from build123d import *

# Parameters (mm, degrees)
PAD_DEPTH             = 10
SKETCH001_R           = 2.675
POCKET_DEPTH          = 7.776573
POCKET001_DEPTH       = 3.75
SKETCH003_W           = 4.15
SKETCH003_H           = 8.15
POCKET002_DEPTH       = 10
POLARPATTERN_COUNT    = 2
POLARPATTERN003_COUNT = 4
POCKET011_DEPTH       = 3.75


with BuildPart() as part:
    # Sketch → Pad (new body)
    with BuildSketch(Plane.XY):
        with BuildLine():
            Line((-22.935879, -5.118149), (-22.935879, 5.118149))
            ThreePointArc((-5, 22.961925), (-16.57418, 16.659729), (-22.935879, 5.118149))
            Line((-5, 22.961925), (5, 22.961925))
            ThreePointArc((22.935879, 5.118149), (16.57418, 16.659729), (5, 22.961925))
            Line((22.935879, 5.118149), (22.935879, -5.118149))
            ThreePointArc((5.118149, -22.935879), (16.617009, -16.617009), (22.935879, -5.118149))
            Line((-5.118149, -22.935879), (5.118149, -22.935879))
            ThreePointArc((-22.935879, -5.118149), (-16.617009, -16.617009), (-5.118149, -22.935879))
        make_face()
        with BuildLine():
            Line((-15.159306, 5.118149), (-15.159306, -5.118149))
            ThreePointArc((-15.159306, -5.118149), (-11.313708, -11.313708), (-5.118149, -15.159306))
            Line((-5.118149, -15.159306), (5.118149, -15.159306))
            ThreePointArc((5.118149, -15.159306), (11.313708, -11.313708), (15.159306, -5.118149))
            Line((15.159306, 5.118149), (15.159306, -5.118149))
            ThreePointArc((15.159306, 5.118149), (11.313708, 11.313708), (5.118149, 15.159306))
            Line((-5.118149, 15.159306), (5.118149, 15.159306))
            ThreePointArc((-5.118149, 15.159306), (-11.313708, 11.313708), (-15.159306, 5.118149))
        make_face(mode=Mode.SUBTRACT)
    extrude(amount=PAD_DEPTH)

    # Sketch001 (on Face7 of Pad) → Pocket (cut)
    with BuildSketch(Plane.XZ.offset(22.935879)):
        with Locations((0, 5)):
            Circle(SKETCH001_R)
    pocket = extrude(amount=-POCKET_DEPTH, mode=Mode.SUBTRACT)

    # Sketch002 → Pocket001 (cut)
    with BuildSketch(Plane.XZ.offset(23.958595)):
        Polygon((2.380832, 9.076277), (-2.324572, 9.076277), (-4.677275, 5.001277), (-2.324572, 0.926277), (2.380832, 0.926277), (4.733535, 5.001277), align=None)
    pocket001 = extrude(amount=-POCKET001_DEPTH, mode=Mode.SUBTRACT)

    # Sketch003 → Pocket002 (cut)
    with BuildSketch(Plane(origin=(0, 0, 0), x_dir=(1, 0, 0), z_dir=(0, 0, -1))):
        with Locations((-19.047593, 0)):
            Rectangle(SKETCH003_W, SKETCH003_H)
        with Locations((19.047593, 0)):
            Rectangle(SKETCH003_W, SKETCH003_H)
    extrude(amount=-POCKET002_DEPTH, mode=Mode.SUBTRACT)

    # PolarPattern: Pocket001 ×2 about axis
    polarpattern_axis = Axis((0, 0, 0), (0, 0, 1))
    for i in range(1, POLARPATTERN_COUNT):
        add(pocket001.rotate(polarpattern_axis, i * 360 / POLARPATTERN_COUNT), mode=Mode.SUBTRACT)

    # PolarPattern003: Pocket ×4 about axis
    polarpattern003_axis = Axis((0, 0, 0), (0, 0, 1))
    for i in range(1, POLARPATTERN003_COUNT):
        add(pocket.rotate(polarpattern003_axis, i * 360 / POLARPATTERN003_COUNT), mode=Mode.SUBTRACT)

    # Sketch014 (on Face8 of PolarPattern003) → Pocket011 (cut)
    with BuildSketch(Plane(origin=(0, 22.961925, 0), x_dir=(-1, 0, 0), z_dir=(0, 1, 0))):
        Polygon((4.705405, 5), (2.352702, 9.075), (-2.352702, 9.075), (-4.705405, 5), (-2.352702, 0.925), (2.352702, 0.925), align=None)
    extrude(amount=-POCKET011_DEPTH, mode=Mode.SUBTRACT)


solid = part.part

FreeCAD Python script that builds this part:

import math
import FreeCAD as App
import Part
import Sketcher
Q = App.Units.Quantity

doc = App.newDocument("Part")
params = doc.addObject("Spreadsheet::Sheet", "Params")
for row, (alias, value) in enumerate([
    ("sketch1_radius", "23.499998 mm"),
    ("sketch1_width", "10 mm"),
    ("pad1_length", "10 mm"),
    ("sketch2_diameter", "5.35 mm"),
    ("pocket1_length", "7.776573 mm"),
    ("pocket2_length", "3.75 mm"),
    ("sketch4_width", "4.15 mm"),
    ("sketch4_height", "8.15 mm"),
    ("pocket3_length", "10 mm"),
    ("pocket4_length", "3.75 mm"),
], start=1):
    params.set(f"A{row}", alias)
    params.set(f"B{row}", "=" + value)
    params.setAlias(f"B{row}", alias)

body = doc.addObject("PartDesign::Body", "Body")

# Sketch on XY plane
sketch1 = doc.addObject("Sketcher::SketchObject", "Sketch")
body.addObject(sketch1)
sketch1.AttachmentSupport = (doc.XY_Plane, [""])
sketch1.MapMode = "FlatFace"
sketch1.addGeometry([
    Part.LineSegment(App.Vector(-23, 5, 0), App.Vector(-23, -5, 0)),  # 0
    Part.ArcOfCircle(Part.Circle(App.Vector(0, 0, 0), App.Vector(0, 0, 1), 24), math.radians(-167), math.radians(-103)),  # 1
    Part.LineSegment(App.Vector(-5, -23, 0), App.Vector(5, -23, 0)),  # 2
    Part.ArcOfCircle(Part.Circle(App.Vector(0, 0, 0), App.Vector(0, 0, 1), 24), math.radians(-77), math.radians(-13)),  # 3
    Part.LineSegment(App.Vector(23, -5, 0), App.Vector(23, 5, 0)),  # 4
    Part.ArcOfCircle(Part.Circle(App.Vector(0, 0, 0), App.Vector(0, 0, 1), 23), math.radians(13), math.radians(78)),  # 5
    Part.LineSegment(App.Vector(5, 23, 0), App.Vector(-5, 23, 0)),  # 6
    Part.ArcOfCircle(Part.Circle(App.Vector(0, 0, 0), App.Vector(0, 0, 1), 23), math.radians(102), math.radians(167)),  # 7
    Part.ArcOfCircle(Part.Circle(App.Vector(0, 0, 0), App.Vector(0, 0, 1), 16), math.radians(109), math.radians(161)),  # 8
    Part.LineSegment(App.Vector(-5, 15, 0), App.Vector(5, 15, 0)),  # 9
    Part.ArcOfCircle(Part.Circle(App.Vector(0, 0, 0), App.Vector(0, 0, 1), 16), math.radians(19), math.radians(71)),  # 10
    Part.LineSegment(App.Vector(15, 5, 0), App.Vector(15, -5, 0)),  # 11
    Part.ArcOfCircle(Part.Circle(App.Vector(0, 0, 0), App.Vector(0, 0, 1), 16), math.radians(-71), math.radians(-19)),  # 12
    Part.LineSegment(App.Vector(5, -15, 0), App.Vector(-5, -15, 0)),  # 13
    Part.ArcOfCircle(Part.Circle(App.Vector(0, 0, 0), App.Vector(0, 0, 1), 16), math.radians(-161), math.radians(-109)),  # 14
    Part.LineSegment(App.Vector(-15, -5, 0), App.Vector(-15, 5, 0)),  # 15
], False)
sketch1.addConstraint([
    Sketcher.Constraint("Coincident", 0, 2, 1, 1),
    Sketcher.Constraint("Coincident", 1, 2, 2, 1),
    Sketcher.Constraint("Coincident", 2, 2, 3, 1),
    Sketcher.Constraint("Coincident", 3, 2, 4, 1),
    Sketcher.Constraint("Coincident", 4, 2, 5, 1),
    Sketcher.Constraint("Coincident", 5, 2, 6, 1),
    Sketcher.Constraint("Coincident", 6, 2, 7, 1),
    Sketcher.Constraint("Coincident", 7, 2, 0, 1),
    Sketcher.Constraint("Coincident", 8, 1, 9, 1),
    Sketcher.Constraint("Coincident", 9, 2, 10, 2),
    Sketcher.Constraint("Coincident", 10, 1, 11, 1),
    Sketcher.Constraint("Coincident", 11, 2, 12, 2),
    Sketcher.Constraint("Coincident", 12, 1, 13, 1),
    Sketcher.Constraint("Coincident", 13, 2, 14, 2),
    Sketcher.Constraint("Coincident", 14, 1, 15, 1),
    Sketcher.Constraint("Coincident", 15, 2, 8, 2),
    Sketcher.Constraint("Vertical", 0),
    Sketcher.Constraint("Horizontal", 2),
    Sketcher.Constraint("Vertical", 4),
    Sketcher.Constraint("Horizontal", 6),
    Sketcher.Constraint("Horizontal", 9),
    Sketcher.Constraint("Vertical", 11),
    Sketcher.Constraint("Horizontal", 13),
    Sketcher.Constraint("Vertical", 15),
    Sketcher.Constraint("Coincident", 1, 3, -1, 1),
    Sketcher.Constraint("Coincident", 3, 3, -1, 1),
    Sketcher.Constraint("Coincident", 5, 3, -1, 1),
    Sketcher.Constraint("Coincident", 7, 3, -1, 1),
    Sketcher.Constraint("Coincident", 8, 3, -1, 1),
    Sketcher.Constraint("Coincident", 10, 3, -1, 1),
    Sketcher.Constraint("Coincident", 12, 3, -1, 1),
    Sketcher.Constraint("Coincident", 14, 3, -1, 1),
    Sketcher.Constraint("Equal", 1, 3),
    Sketcher.Constraint("Equal", 5, 7),
    Sketcher.Constraint("Equal", 8, 10),
    Sketcher.Constraint("Equal", 10, 12),
    Sketcher.Constraint("Equal", 12, 14),
    Sketcher.Constraint("Symmetric", 0, 2, 4, 2, -1, 1),
    Sketcher.Constraint("Horizontal", 7, 2, 10, 1),
    Sketcher.Constraint("Horizontal", 11, 2, 14, 1),
    Sketcher.Constraint("Vertical", 1, 2, 8, 1),
    Sketcher.Constraint("Vertical", 9, 2, 12, 1),
    Sketcher.Constraint("Equal", 13, 0),
    Sketcher.Constraint("Radius", 5, 23.499998),
    Sketcher.Constraint("DistanceX", 6, 2, 6, 1, 10.0),
    Sketcher.Constraint("Radius", 8, 16.000008),
    Sketcher.Constraint("DistanceX", 1, 2, 2, 2, 10.236298),
])
sketch1.setExpression("Constraints[43]", "Params.sketch1_radius")
sketch1.setExpression("Constraints[44]", "Params.sketch1_width")
pad1 = doc.addObject("PartDesign::Pad", "Pad")
body.addObject(pad1)
pad1.Profile = sketch1
pad1.setExpression("Length", "Params.pad1_length")

# Sketch on XZ plane
sketch2 = doc.addObject("Sketcher::SketchObject", "Sketch001")
body.addObject(sketch2)
sketch2.AttachmentSupport = (doc.XZ_Plane, [""])
sketch2.MapMode = "FlatFace"
sketch2.AttachmentOffset = App.Placement(App.Vector(0, 0, 22.935879), App.Rotation())
sketch2.addGeometry(Part.Circle(App.Vector(0, 5, 0), App.Vector(0, 0, 1), 2.7), False)
sketch2.addConstraint([
    Sketcher.Constraint("PointOnObject", 0, 3, -2),
    Sketcher.Constraint("Diameter", 0, 5.35),
    Sketcher.Constraint("DistanceY", -1, 1, 0, 3, 5.0),
])
sketch2.setExpression("Constraints[1]", "Params.sketch2_diameter")
pocket1 = doc.addObject("PartDesign::Pocket", "Pocket")
body.addObject(pocket1)
pocket1.Profile = sketch2
pocket1.setExpression("Length", "Params.pocket1_length")

# Sketch on XZ plane
sketch3 = doc.addObject("Sketcher::SketchObject", "Sketch002")
body.addObject(sketch3)
sketch3.AttachmentSupport = (doc.XZ_Plane, [""])
sketch3.MapMode = "FlatFace"
sketch3.AttachmentOffset = App.Placement(App.Vector(0, 0, 23.958595), App.Rotation())
sketch3.addGeometry([
    Part.LineSegment(App.Vector(2.4, 9.1, 0), App.Vector(-2.3, 9.1, 0)),  # 0
    Part.LineSegment(App.Vector(-2.3, 9.1, 0), App.Vector(-4.7, 5, 0)),  # 1
    Part.LineSegment(App.Vector(-4.7, 5, 0), App.Vector(-2.3, 0.9, 0)),  # 2
    Part.LineSegment(App.Vector(-2.3, 0.9, 0), App.Vector(2.4, 0.9, 0)),  # 3
    Part.LineSegment(App.Vector(2.4, 0.9, 0), App.Vector(4.7, 5, 0)),  # 4
    Part.LineSegment(App.Vector(4.7, 5, 0), App.Vector(2.4, 9.1, 0)),  # 5
], False)
sketch3.addConstraint([
    Sketcher.Constraint("Coincident", 0, 2, 1, 1),
    Sketcher.Constraint("Coincident", 1, 2, 2, 1),
    Sketcher.Constraint("Coincident", 2, 2, 3, 1),
    Sketcher.Constraint("Coincident", 3, 2, 4, 1),
    Sketcher.Constraint("Coincident", 4, 2, 5, 1),
    Sketcher.Constraint("Coincident", 5, 2, 0, 1),
    Sketcher.Constraint("Horizontal", 0),
    Sketcher.Constraint("Horizontal", 3),
    Sketcher.Constraint("Parallel", 1, 4),
    Sketcher.Constraint("Parallel", 2, 5),
    Sketcher.Constraint("Horizontal", 1, 2, 4, 2),
    Sketcher.Constraint("Vertical", 0, 2, 2, 2),
    Sketcher.Constraint("Vertical", 3, 2, 5, 2),
    Sketcher.Constraint("Angle", 1, Q("-120.000007 deg")),
    Sketcher.Constraint("DistanceY", 2, 2, 0, 2, 8.15),
    Sketcher.Constraint("DistanceX", 0, 2, 0, 1, 4.705404),
    Sketcher.Constraint("DistanceX", 0, 2, -1, 1, 2.324572),
    Sketcher.Constraint("DistanceY", -1, 1, 0, 2, 9.076277),
])
pocket2 = doc.addObject("PartDesign::Pocket", "Pocket001")
body.addObject(pocket2)
pocket2.Profile = sketch3
pocket2.setExpression("Length", "Params.pocket2_length")

# Sketch on XY plane
sketch4 = doc.addObject("Sketcher::SketchObject", "Sketch003")
body.addObject(sketch4)
sketch4.AttachmentSupport = (doc.XY_Plane, [""])
sketch4.MapMode = "FlatFace"
sketch4.addGeometry([
    Part.LineSegment(App.Vector(-21.1, -4.1, 0), App.Vector(-21.1, 4.1, 0)),  # 0
    Part.LineSegment(App.Vector(-21.1, 4.1, 0), App.Vector(-17, 4.1, 0)),  # 1
    Part.LineSegment(App.Vector(-17, 4.1, 0), App.Vector(-17, -4.1, 0)),  # 2
    Part.LineSegment(App.Vector(-17, -4.1, 0), App.Vector(-21.1, -4.1, 0)),  # 3
    Part.LineSegment(App.Vector(17, -4.1, 0), App.Vector(17, 4.1, 0)),  # 4
    Part.LineSegment(App.Vector(17, 4.1, 0), App.Vector(21.1, 4.1, 0)),  # 5
    Part.LineSegment(App.Vector(21.1, 4.1, 0), App.Vector(21.1, -4.1, 0)),  # 6
    Part.LineSegment(App.Vector(21.1, -4.1, 0), App.Vector(17, -4.1, 0)),  # 7
], False)
sketch4.addConstraint([
    Sketcher.Constraint("Coincident", 0, 2, 1, 1),
    Sketcher.Constraint("Coincident", 1, 2, 2, 1),
    Sketcher.Constraint("Coincident", 2, 2, 3, 1),
    Sketcher.Constraint("Coincident", 3, 2, 0, 1),
    Sketcher.Constraint("Coincident", 4, 2, 5, 1),
    Sketcher.Constraint("Coincident", 5, 2, 6, 1),
    Sketcher.Constraint("Coincident", 6, 2, 7, 1),
    Sketcher.Constraint("Coincident", 7, 2, 4, 1),
    Sketcher.Constraint("Vertical", 0),
    Sketcher.Constraint("Horizontal", 1),
    Sketcher.Constraint("Vertical", 2),
    Sketcher.Constraint("Horizontal", 3),
    Sketcher.Constraint("Vertical", 4),
    Sketcher.Constraint("Horizontal", 5),
    Sketcher.Constraint("Vertical", 6),
    Sketcher.Constraint("Horizontal", 7),
    Sketcher.Constraint("Symmetric", 2, 2, 4, 2, -1, 1),
    Sketcher.Constraint("Symmetric", 0, 2, 6, 2, -1, 1),
    Sketcher.Constraint("Horizontal", 1, 2, 4, 2),
    Sketcher.Constraint("DistanceX", 1, 1, 1, 2, 4.15),
    Sketcher.Constraint("DistanceY", 0, 1, 0, 2, 8.15),
    Sketcher.Constraint("DistanceX", 0, 2, -1, 1, 21.122593),
])
sketch4.setExpression("Constraints[19]", "Params.sketch4_width")
sketch4.setExpression("Constraints[20]", "Params.sketch4_height")
pocket3 = doc.addObject("PartDesign::Pocket", "Pocket002")
body.addObject(pocket3)
pocket3.Profile = sketch4
pocket3.setExpression("Length", "Params.pocket3_length")
pocket3.Reversed = True
doc.recompute()

polarpattern = doc.addObject("PartDesign::PolarPattern", "PolarPattern")
body.addObject(polarpattern)
polarpattern.Originals = [pocket2]
polarpattern.Axis = (doc.Z_Axis, [""])
polarpattern.Angle = 360
polarpattern.Occurrences = 2
body.Tip = polarpattern
doc.recompute()

polarpattern2 = doc.addObject("PartDesign::PolarPattern", "PolarPattern001")
body.addObject(polarpattern2)
polarpattern2.Originals = [pocket1]
polarpattern2.Axis = (doc.Z_Axis, [""])
polarpattern2.Angle = 360
polarpattern2.Occurrences = 4
body.Tip = polarpattern2

# Sketch on XZ plane
sketch5 = doc.addObject("Sketcher::SketchObject", "Sketch004")
body.addObject(sketch5)
sketch5.AttachmentSupport = (doc.XZ_Plane, [""])
sketch5.MapMode = "FlatFace"
sketch5.AttachmentOffset = App.Placement(App.Vector(0, 0, -22.961925), App.Rotation())
sketch5.addGeometry([
    Part.LineSegment(App.Vector(-4.7, 5, 0), App.Vector(-2.4, 9.1, 0)),  # 0
    Part.LineSegment(App.Vector(-2.4, 9.1, 0), App.Vector(2.4, 9.1, 0)),  # 1
    Part.LineSegment(App.Vector(2.4, 9.1, 0), App.Vector(4.7, 5, 0)),  # 2
    Part.LineSegment(App.Vector(4.7, 5, 0), App.Vector(2.4, 0.9, 0)),  # 3
    Part.LineSegment(App.Vector(2.4, 0.9, 0), App.Vector(-2.4, 0.9, 0)),  # 4
    Part.LineSegment(App.Vector(-2.4, 0.9, 0), App.Vector(-4.7, 5, 0)),  # 5
], False)
sketch5.addConstraint([
    Sketcher.Constraint("Coincident", 0, 2, 1, 1),
    Sketcher.Constraint("Coincident", 1, 2, 2, 1),
    Sketcher.Constraint("Coincident", 2, 2, 3, 1),
    Sketcher.Constraint("Coincident", 3, 2, 4, 1),
    Sketcher.Constraint("Coincident", 4, 2, 5, 1),
    Sketcher.Constraint("Coincident", 5, 2, 0, 1),
    Sketcher.Constraint("Horizontal", 1),
    Sketcher.Constraint("Horizontal", 4),
    Sketcher.Constraint("Symmetric", 2, 2, 5, 2, -2),
    Sketcher.Constraint("Parallel", 0, 3),
    Sketcher.Constraint("Parallel", 2, 5),
    Sketcher.Constraint("Vertical", 1, 2, 3, 2),
    Sketcher.Constraint("Vertical", 0, 2, 4, 2),
    Sketcher.Constraint("Angle", 0, Q("59.999993 deg")),
    Sketcher.Constraint("DistanceY", -1, 1, 2, 2, 5.0),
    Sketcher.Constraint("DistanceY", 3, 2, 1, 2, 8.15),
    Sketcher.Constraint("DistanceX", 0, 2, -1, 1, 2.352702),
])
pocket4 = doc.addObject("PartDesign::Pocket", "Pocket003")
body.addObject(pocket4)
pocket4.Profile = sketch5
pocket4.setExpression("Length", "Params.pocket4_length")
pocket4.Reversed = True

doc.recompute()
